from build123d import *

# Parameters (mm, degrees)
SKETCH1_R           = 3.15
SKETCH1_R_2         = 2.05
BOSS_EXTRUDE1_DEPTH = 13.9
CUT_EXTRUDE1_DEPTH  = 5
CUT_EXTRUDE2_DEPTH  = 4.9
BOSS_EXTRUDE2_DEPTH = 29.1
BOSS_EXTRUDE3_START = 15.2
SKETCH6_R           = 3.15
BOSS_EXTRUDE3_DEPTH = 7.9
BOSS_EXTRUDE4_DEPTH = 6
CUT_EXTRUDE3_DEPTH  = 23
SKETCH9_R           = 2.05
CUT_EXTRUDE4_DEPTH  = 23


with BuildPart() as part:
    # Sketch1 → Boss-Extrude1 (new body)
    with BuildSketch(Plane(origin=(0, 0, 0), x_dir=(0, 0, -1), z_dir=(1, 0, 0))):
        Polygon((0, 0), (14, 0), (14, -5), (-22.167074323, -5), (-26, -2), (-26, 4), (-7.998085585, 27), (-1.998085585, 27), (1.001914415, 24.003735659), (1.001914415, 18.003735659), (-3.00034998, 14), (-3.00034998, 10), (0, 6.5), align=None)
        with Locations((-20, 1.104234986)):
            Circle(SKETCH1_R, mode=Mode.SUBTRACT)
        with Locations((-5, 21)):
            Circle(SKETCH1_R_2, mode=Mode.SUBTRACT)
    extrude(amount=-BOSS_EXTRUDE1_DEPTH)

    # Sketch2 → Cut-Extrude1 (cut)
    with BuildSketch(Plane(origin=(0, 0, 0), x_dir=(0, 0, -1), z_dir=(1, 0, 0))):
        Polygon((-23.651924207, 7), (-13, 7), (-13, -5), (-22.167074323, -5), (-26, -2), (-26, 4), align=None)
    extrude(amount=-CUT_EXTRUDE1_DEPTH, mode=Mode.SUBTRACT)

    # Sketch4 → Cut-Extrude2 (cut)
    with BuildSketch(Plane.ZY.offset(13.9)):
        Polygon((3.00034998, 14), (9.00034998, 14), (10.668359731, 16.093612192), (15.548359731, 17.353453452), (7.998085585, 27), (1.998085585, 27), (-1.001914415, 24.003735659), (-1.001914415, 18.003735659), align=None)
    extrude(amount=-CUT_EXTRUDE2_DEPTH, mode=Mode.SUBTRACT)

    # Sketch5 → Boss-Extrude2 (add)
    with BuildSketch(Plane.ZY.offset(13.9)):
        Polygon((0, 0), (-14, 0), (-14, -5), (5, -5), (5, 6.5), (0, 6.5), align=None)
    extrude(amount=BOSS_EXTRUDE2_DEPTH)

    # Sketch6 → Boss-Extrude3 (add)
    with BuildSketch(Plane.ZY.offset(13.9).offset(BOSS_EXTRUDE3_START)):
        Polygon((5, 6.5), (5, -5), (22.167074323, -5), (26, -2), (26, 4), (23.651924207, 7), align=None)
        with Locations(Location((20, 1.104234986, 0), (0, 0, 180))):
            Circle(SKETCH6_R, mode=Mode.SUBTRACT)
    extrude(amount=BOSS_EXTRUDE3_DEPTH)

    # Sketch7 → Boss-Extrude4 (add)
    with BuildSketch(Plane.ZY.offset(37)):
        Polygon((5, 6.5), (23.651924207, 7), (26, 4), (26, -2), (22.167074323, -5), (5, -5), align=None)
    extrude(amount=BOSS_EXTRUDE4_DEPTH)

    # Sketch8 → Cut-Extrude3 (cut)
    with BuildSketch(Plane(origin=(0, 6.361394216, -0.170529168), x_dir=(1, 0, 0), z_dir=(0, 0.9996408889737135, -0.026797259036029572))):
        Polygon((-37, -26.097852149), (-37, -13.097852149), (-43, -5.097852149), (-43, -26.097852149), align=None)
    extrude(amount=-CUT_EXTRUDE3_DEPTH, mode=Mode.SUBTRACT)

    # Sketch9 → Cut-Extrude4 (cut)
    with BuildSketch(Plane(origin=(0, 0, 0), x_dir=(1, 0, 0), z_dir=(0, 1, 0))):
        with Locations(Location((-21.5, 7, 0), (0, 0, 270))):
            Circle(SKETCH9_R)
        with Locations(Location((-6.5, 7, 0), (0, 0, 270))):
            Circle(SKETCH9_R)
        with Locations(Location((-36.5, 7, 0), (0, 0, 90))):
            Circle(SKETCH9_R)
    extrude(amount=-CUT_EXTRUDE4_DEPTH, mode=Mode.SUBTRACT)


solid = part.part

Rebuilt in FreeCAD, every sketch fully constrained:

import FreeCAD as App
import Part
import Sketcher
from FreeCAD import Vector
Q = App.Units.Quantity


def add_polygon(sketch, points):
    """Adds a closed chain of lines whose ends are joined by coincident constraints."""
    first, n = sketch.GeometryCount, len(points)
    for a, b in zip(points, points[1:] + points[:1]):
        sketch.addGeometry(Part.LineSegment(App.Vector(*a, 0), App.Vector(*b, 0)), False)
    for i in range(n):
        sketch.addConstraint(Sketcher.Constraint("Coincident", first + i, 2, first + (i + 1) % n, 1))

doc = App.newDocument("Part")
body = doc.addObject("PartDesign::Body", "Body")

# Sketch on YZ plane
sketch1 = body.newObject("Sketcher::SketchObject", "Sketch")
sketch1.AttachmentSupport = (doc.getObject("YZ_Plane"), [""])
sketch1.MapMode = "FlatFace"
add_polygon(sketch1, [(0, -14), (0, 0), (6.5, 0), (10, 3.00035), (14, 3.00035), (18.003736, -1.001914), (24.003736, -1.001914), (27, 1.998086), (27, 7.998086), (4, 26), (-2, 26), (-5, 22.167074), (-5, -14)])  # lines 0-12
sketch1.addGeometry(Part.Circle(Vector(1.104235, 20, 0), Vector(0, 0, 1), 3.15), False)  # 13
sketch1.addGeometry(Part.Circle(Vector(21, 5, 0), Vector(0, 0, 1), 2.05), False)  # 14
sketch1.addConstraint([
    Sketcher.Constraint("Vertical", 0),
    Sketcher.Constraint("Horizontal", 1),
    Sketcher.Constraint("Horizontal", 3),
    Sketcher.Constraint("Horizontal", 5),
    Sketcher.Constraint("Vertical", 7),
    Sketcher.Constraint("Horizontal", 9),
    Sketcher.Constraint("Vertical", 11),
    Sketcher.Constraint("Horizontal", 12),
    Sketcher.Constraint("Coincident", 0, 2, -1, 1),
    Sketcher.Constraint("Perpendicular", 8, 10),
    Sketcher.Constraint("Equal", 5, 9),
    Sketcher.Constraint("Equal", 9, 7),
    Sketcher.Constraint("Diameter", 13, 6.3),
    Sketcher.Constraint("Diameter", 14, 4.1),
    Sketcher.Constraint("DistanceX", 3, 1, 3, 2, 4.0),
    Sketcher.Constraint("DistanceX", 5, 1, 5, 2, 6.0),
    Sketcher.Constraint("DistanceX", 12, 1, 12, 2, 5.0),
    Sketcher.Constraint("DistanceY", 0, 1, 0, 2, 14.0),
    Sketcher.Constraint("DistanceX", 1, 1, 1, 2, 6.5),
    Sketcher.Constraint("DistanceY", -1, 1, 13, 3, 20.0),
    Sketcher.Constraint("DistanceX", -1, 1, 14, 3, 21.0),
    Sketcher.Constraint("DistanceY", -1, 1, 14, 3, 5.0),
    Sketcher.Constraint("DistanceX", -1, 1, 2, 2, 10.0),
    Sketcher.Constraint("DistanceX", -1, 1, 6, 2, 27.0),
    Sketcher.Constraint("DistanceX", -1, 1, 8, 2, 4.0),
    Sketcher.Constraint("DistanceY", -1, 1, 8, 2, 26.0),
    Sketcher.Constraint("DistanceY", 5, 2, 6, 2, 3.0),
    Sketcher.Constraint("Angle", 8, Q("141.95 deg")),
    Sketcher.Constraint("Distance", 2, 4.61),
    Sketcher.Constraint("Distance", 6, 4.24),
    Sketcher.Constraint("DistanceX", -1, 1, 13, 3, 1.104235),
])
pad1 = body.newObject("PartDesign::Pad", "Pad")
pad1.Profile = sketch1
pad1.Length = 13.9
pad1.Reversed = True

# Sketch on YZ plane
sketch2 = body.newObject("Sketcher::SketchObject", "Sketch001")
sketch2.AttachmentSupport = (doc.getObject("YZ_Plane"), [""])
sketch2.MapMode = "FlatFace"
add_polygon(sketch2, [(7, 13), (7, 23.651924), (4, 26), (-2, 26), (-5, 22.167074), (-5, 13)])  # lines 0-5
sketch2.addConstraint([
    Sketcher.Constraint("Vertical", 0),
    Sketcher.Constraint("Horizontal", 2),
    Sketcher.Constraint("Vertical", 4),
    Sketcher.Constraint("Horizontal", 5),
    Sketcher.Constraint("Perpendicular", 1, 3),
    Sketcher.Constraint("DistanceX", 2, 2, 2, 1, 6.0),
    Sketcher.Constraint("DistanceX", 5, 1, 5, 2, 12.0),
    Sketcher.Constraint("DistanceX", -1, 1, 0, 2, 7.0),
    Sketcher.Constraint("DistanceX", -1, 1, 1, 2, 4.0),
    Sketcher.Constraint("DistanceY", -1, 1, 1, 2, 26.0),
    Sketcher.Constraint("DistanceY", -1, 1, 4, 2, 13.0),
    Sketcher.Constraint("Angle", 1, Q("141.95 deg")),
])
pocket1 = body.newObject("PartDesign::Pocket", "Pocket")
pocket1.Profile = sketch2
pocket1.Length = 5

# Sketch on YZ plane
sketch3 = body.newObject("Sketcher::SketchObject", "Sketch002")
sketch3.AttachmentSupport = (doc.getObject("YZ_Plane"), [""])
sketch3.MapMode = "FlatFace"
sketch3.AttachmentOffset = App.Placement(Vector(0, 0, -13.9), App.Rotation())
add_polygon(sketch3, [(14, 3.00035), (14, 9.00035), (16.093612, 10.66836), (17.353453, 15.54836), (27, 7.998086), (27, 1.998086), (24.003736, -1.001914), (18.003736, -1.001914)])  # lines 0-7
sketch3.addConstraint([
    Sketcher.Constraint("Vertical", 0),
    Sketcher.Constraint("Vertical", 4),
    Sketcher.Constraint("Horizontal", 6),
    Sketcher.Constraint("Equal", 6, 0),
    Sketcher.Constraint("Equal", 0, 4),
    Sketcher.Constraint("DistanceX", 6, 2, 6, 1, 6.0),
    Sketcher.Constraint("DistanceX", -1, 1, 0, 2, 14.0),
    Sketcher.Constraint("DistanceX", -1, 1, 3, 2, 27.0),
    Sketcher.Constraint("DistanceY", 5, 2, 4, 2, 3.0),
    Sketcher.Constraint("Angle", 3, Q("-38.05 deg")),
    Sketcher.Constraint("Distance", 2, 5.04),
    Sketcher.Constraint("Distance", 3, 12.25),
    Sketcher.Constraint("Distance", 5, 4.24),
    Sketcher.Constraint("DistanceY", 1, 2, 2, 2, 4.88),
    Sketcher.Constraint("Distance", 1, 2.676839),
    Sketcher.Constraint("DistanceY", -1, 1, 0, 2, 9.00035),
])
pocket2 = body.newObject("PartDesign::Pocket", "Pocket001")
pocket2.Profile = sketch3
pocket2.Length = 4.9
pocket2.Reversed = True

# Sketch on YZ plane
sketch4 = body.newObject("Sketcher::SketchObject", "Sketch003")
sketch4.AttachmentSupport = (doc.getObject("YZ_Plane"), [""])
sketch4.MapMode = "FlatFace"
sketch4.AttachmentOffset = App.Placement(Vector(0, 0, -13.9), App.Rotation())
add_polygon(sketch4, [(0, 0), (0, -14), (-5, -14), (-5, 5), (6.5, 5), (6.5, 0)])  # lines 0-5
sketch4.addConstraint([
    Sketcher.Constraint("Vertical", 0),
    Sketcher.Constraint("Horizontal", 1),
    Sketcher.Constraint("Vertical", 2),
    Sketcher.Constraint("Horizontal", 3),
    Sketcher.Constraint("Vertical", 4),
    Sketcher.Constraint("Horizontal", 5),
    Sketcher.Constraint("Coincident", 5, 2, -1, 1),
    Sketcher.Constraint("Equal", 1, 4),
    Sketcher.Constraint("DistanceX", 1, 2, 1, 1, 5.0),
    Sketcher.Constraint("DistanceY", 0, 2, 0, 1, 14.0),
    Sketcher.Constraint("DistanceX", 3, 1, 3, 2, 11.5),
])
pad2 = body.newObject("PartDesign::Pad", "Pad001")
pad2.Profile = sketch4
pad2.Length = 29.1
pad2.Reversed = True

# Sketch on YZ plane
sketch5 = body.newObject("Sketcher::SketchObject", "Sketch004")
sketch5.AttachmentSupport = (doc.getObject("YZ_Plane"), [""])
sketch5.MapMode = "FlatFace"
sketch5.AttachmentOffset = App.Placement(Vector(0, 0, -29.1), App.Rotation())
add_polygon(sketch5, [(6.5, 5), (-5, 5), (-5, 22.167074), (-2, 26), (4, 26), (7, 23.651924)])  # lines 0-5
sketch5.addGeometry(Part.Circle(Vector(1.104235, 20, 0), Vector(0, 0, 1), 3.15), False)  # 6
sketch5.addConstraint([
    Sketcher.Constraint("Horizontal", 0),
    Sketcher.Constraint("Vertical", 1),
    Sketcher.Constraint("Horizontal", 3),
    Sketcher.Constraint("Perpendicular", 2, 4),
    Sketcher.Constraint("Diameter", 6, 6.3),
    Sketcher.Constraint("DistanceX", 3, 1, 3, 2, 6.0),
    Sketcher.Constraint("DistanceX", 0, 2, 0, 1, 11.5),
    Sketcher.Constraint("DistanceY", -1, 1, 6, 3, 20.0),
    Sketcher.Constraint("DistanceX", 0, 2, -1, 1, 5.0),
    Sketcher.Constraint("DistanceY", -1, 1, 0, 2, 5.0),
    Sketcher.Constraint("DistanceX", 2, 2, -1, 1, 2.0),
    Sketcher.Constraint("DistanceY", -1, 1, 2, 2, 26.0),
    Sketcher.Constraint("DistanceX", -1, 1, 4, 2, 7.0),
    Sketcher.Constraint("Angle", 2, Q("51.95 deg")),
    Sketcher.Constraint("DistanceX", -1, 1, 6, 3, 1.104235),
])
pad3 = body.newObject("PartDesign::Pad", "Pad002")
pad3.Profile = sketch5
pad3.Length = 7.9
pad3.Reversed = True

# Sketch on YZ plane
sketch6 = body.newObject("Sketcher::SketchObject", "Sketch005")
sketch6.AttachmentSupport = (doc.getObject("YZ_Plane"), [""])
sketch6.MapMode = "FlatFace"
sketch6.AttachmentOffset = App.Placement(Vector(0, 0, -37), App.Rotation())
add_polygon(sketch6, [(7, 23.651924), (6.5, 5), (-5, 5), (-5, 22.167074), (-2, 26), (4, 26)])  # lines 0-5
sketch6.addConstraint([
    Sketcher.Constraint("Horizontal", 1),
    Sketcher.Constraint("Vertical", 2),
    Sketcher.Constraint("Horizontal", 4),
    Sketcher.Constraint("Perpendicular", 3, 5),
    Sketcher.Constraint("DistanceX", 4, 1, 4, 2, 6.0),
    Sketcher.Constraint("DistanceX", 1, 2, 1, 1, 11.5),
    Sketcher.Constraint("DistanceY", -1, 1, 0, 2, 5.0),
    Sketcher.Constraint("DistanceX", 1, 2, -1, 1, 5.0),
    Sketcher.Constraint("DistanceX", 3, 2, -1, 1, 2.0),
    Sketcher.Constraint("DistanceY", -1, 1, 3, 2, 26.0),
    Sketcher.Constraint("DistanceX", -1, 1, 5, 2, 7.0),
    Sketcher.Constraint("Angle", 3, Q("51.95 deg")),
])
pad4 = body.newObject("PartDesign::Pad", "Pad003")
pad4.Profile = sketch6
pad4.Length = 6
pad4.Reversed = True

# Sketch on an angled plane
sketch7 = body.newObject("Sketcher::SketchObject", "Sketch006")
sketch7.Placement = App.Placement(Vector(0, 6.361394, -0.170529), App.Rotation(Vector(1, 0, 0), Vector(0, -0.026797259, -0.999640889), Vector(0, 0.999640889, -0.026797259), "ZXY"))
add_polygon(sketch7, [(-37, -26.097852), (-37, -13.097852), (-43, -5.097852), (-43, -26.097852)])  # lines 0-3
sketch7.addConstraint([
    Sketcher.Constraint("Vertical", 0),
    Sketcher.Constraint("Vertical", 2),
    Sketcher.Constraint("Horizontal", 3),
    Sketcher.Constraint("DistanceX", 3, 1, 3, 2, 6.0),
    Sketcher.Constraint("DistanceY", 0, 1, 0, 2, 13.0),
    Sketcher.Constraint("DistanceY", 2, 2, 2, 1, 21.0),
    Sketcher.Constraint("DistanceX", 0, 2, -1, 1, 37.0),
    Sketcher.Constraint("DistanceY", 0, 2, -1, 1, 13.097852),
])
pocket3 = body.newObject("PartDesign::Pocket", "Pocket002")
pocket3.Profile = sketch7
pocket3.Length = 23

# Sketch on XZ plane
sketch8 = body.newObject("Sketcher::SketchObject", "Sketch007")
sketch8.AttachmentSupport = (doc.getObject("XZ_Plane"), [""])
sketch8.MapMode = "FlatFace"
sketch8.addGeometry([
    Part.Circle(Vector(-21.5, -7, 0), Vector(0, 0, 1), 2.05),
    Part.Circle(Vector(-6.5, -7, 0), Vector(0, 0, 1), 2.05),
    Part.Circle(Vector(-36.5, -7, 0), Vector(0, 0, 1), 2.05),
], False)
sketch8.addConstraint([
    Sketcher.Constraint("Equal", 0, 1),
    Sketcher.Constraint("Equal", 1, 2),
    Sketcher.Constraint("Horizontal", 0, 3, 1, 3),
    Sketcher.Constraint("Horizontal", 1, 3, 2, 3),
    Sketcher.Constraint("Diameter", 0, 4.1),
    Sketcher.Constraint("DistanceY", 0, 3, -1, 1, 7.0),
    Sketcher.Constraint("DistanceX", 0, 3, 1, 3, 15.0),
    Sketcher.Constraint("DistanceX", 2, 3, 0, 3, 15.0),
    Sketcher.Constraint("DistanceX", 0, 3, -1, 1, 21.5),
])
pocket4 = body.newObject("PartDesign::Pocket", "Pocket003")
pocket4.Profile = sketch8
pocket4.Length = 23
pocket4.Reversed = True

doc.recompute()
